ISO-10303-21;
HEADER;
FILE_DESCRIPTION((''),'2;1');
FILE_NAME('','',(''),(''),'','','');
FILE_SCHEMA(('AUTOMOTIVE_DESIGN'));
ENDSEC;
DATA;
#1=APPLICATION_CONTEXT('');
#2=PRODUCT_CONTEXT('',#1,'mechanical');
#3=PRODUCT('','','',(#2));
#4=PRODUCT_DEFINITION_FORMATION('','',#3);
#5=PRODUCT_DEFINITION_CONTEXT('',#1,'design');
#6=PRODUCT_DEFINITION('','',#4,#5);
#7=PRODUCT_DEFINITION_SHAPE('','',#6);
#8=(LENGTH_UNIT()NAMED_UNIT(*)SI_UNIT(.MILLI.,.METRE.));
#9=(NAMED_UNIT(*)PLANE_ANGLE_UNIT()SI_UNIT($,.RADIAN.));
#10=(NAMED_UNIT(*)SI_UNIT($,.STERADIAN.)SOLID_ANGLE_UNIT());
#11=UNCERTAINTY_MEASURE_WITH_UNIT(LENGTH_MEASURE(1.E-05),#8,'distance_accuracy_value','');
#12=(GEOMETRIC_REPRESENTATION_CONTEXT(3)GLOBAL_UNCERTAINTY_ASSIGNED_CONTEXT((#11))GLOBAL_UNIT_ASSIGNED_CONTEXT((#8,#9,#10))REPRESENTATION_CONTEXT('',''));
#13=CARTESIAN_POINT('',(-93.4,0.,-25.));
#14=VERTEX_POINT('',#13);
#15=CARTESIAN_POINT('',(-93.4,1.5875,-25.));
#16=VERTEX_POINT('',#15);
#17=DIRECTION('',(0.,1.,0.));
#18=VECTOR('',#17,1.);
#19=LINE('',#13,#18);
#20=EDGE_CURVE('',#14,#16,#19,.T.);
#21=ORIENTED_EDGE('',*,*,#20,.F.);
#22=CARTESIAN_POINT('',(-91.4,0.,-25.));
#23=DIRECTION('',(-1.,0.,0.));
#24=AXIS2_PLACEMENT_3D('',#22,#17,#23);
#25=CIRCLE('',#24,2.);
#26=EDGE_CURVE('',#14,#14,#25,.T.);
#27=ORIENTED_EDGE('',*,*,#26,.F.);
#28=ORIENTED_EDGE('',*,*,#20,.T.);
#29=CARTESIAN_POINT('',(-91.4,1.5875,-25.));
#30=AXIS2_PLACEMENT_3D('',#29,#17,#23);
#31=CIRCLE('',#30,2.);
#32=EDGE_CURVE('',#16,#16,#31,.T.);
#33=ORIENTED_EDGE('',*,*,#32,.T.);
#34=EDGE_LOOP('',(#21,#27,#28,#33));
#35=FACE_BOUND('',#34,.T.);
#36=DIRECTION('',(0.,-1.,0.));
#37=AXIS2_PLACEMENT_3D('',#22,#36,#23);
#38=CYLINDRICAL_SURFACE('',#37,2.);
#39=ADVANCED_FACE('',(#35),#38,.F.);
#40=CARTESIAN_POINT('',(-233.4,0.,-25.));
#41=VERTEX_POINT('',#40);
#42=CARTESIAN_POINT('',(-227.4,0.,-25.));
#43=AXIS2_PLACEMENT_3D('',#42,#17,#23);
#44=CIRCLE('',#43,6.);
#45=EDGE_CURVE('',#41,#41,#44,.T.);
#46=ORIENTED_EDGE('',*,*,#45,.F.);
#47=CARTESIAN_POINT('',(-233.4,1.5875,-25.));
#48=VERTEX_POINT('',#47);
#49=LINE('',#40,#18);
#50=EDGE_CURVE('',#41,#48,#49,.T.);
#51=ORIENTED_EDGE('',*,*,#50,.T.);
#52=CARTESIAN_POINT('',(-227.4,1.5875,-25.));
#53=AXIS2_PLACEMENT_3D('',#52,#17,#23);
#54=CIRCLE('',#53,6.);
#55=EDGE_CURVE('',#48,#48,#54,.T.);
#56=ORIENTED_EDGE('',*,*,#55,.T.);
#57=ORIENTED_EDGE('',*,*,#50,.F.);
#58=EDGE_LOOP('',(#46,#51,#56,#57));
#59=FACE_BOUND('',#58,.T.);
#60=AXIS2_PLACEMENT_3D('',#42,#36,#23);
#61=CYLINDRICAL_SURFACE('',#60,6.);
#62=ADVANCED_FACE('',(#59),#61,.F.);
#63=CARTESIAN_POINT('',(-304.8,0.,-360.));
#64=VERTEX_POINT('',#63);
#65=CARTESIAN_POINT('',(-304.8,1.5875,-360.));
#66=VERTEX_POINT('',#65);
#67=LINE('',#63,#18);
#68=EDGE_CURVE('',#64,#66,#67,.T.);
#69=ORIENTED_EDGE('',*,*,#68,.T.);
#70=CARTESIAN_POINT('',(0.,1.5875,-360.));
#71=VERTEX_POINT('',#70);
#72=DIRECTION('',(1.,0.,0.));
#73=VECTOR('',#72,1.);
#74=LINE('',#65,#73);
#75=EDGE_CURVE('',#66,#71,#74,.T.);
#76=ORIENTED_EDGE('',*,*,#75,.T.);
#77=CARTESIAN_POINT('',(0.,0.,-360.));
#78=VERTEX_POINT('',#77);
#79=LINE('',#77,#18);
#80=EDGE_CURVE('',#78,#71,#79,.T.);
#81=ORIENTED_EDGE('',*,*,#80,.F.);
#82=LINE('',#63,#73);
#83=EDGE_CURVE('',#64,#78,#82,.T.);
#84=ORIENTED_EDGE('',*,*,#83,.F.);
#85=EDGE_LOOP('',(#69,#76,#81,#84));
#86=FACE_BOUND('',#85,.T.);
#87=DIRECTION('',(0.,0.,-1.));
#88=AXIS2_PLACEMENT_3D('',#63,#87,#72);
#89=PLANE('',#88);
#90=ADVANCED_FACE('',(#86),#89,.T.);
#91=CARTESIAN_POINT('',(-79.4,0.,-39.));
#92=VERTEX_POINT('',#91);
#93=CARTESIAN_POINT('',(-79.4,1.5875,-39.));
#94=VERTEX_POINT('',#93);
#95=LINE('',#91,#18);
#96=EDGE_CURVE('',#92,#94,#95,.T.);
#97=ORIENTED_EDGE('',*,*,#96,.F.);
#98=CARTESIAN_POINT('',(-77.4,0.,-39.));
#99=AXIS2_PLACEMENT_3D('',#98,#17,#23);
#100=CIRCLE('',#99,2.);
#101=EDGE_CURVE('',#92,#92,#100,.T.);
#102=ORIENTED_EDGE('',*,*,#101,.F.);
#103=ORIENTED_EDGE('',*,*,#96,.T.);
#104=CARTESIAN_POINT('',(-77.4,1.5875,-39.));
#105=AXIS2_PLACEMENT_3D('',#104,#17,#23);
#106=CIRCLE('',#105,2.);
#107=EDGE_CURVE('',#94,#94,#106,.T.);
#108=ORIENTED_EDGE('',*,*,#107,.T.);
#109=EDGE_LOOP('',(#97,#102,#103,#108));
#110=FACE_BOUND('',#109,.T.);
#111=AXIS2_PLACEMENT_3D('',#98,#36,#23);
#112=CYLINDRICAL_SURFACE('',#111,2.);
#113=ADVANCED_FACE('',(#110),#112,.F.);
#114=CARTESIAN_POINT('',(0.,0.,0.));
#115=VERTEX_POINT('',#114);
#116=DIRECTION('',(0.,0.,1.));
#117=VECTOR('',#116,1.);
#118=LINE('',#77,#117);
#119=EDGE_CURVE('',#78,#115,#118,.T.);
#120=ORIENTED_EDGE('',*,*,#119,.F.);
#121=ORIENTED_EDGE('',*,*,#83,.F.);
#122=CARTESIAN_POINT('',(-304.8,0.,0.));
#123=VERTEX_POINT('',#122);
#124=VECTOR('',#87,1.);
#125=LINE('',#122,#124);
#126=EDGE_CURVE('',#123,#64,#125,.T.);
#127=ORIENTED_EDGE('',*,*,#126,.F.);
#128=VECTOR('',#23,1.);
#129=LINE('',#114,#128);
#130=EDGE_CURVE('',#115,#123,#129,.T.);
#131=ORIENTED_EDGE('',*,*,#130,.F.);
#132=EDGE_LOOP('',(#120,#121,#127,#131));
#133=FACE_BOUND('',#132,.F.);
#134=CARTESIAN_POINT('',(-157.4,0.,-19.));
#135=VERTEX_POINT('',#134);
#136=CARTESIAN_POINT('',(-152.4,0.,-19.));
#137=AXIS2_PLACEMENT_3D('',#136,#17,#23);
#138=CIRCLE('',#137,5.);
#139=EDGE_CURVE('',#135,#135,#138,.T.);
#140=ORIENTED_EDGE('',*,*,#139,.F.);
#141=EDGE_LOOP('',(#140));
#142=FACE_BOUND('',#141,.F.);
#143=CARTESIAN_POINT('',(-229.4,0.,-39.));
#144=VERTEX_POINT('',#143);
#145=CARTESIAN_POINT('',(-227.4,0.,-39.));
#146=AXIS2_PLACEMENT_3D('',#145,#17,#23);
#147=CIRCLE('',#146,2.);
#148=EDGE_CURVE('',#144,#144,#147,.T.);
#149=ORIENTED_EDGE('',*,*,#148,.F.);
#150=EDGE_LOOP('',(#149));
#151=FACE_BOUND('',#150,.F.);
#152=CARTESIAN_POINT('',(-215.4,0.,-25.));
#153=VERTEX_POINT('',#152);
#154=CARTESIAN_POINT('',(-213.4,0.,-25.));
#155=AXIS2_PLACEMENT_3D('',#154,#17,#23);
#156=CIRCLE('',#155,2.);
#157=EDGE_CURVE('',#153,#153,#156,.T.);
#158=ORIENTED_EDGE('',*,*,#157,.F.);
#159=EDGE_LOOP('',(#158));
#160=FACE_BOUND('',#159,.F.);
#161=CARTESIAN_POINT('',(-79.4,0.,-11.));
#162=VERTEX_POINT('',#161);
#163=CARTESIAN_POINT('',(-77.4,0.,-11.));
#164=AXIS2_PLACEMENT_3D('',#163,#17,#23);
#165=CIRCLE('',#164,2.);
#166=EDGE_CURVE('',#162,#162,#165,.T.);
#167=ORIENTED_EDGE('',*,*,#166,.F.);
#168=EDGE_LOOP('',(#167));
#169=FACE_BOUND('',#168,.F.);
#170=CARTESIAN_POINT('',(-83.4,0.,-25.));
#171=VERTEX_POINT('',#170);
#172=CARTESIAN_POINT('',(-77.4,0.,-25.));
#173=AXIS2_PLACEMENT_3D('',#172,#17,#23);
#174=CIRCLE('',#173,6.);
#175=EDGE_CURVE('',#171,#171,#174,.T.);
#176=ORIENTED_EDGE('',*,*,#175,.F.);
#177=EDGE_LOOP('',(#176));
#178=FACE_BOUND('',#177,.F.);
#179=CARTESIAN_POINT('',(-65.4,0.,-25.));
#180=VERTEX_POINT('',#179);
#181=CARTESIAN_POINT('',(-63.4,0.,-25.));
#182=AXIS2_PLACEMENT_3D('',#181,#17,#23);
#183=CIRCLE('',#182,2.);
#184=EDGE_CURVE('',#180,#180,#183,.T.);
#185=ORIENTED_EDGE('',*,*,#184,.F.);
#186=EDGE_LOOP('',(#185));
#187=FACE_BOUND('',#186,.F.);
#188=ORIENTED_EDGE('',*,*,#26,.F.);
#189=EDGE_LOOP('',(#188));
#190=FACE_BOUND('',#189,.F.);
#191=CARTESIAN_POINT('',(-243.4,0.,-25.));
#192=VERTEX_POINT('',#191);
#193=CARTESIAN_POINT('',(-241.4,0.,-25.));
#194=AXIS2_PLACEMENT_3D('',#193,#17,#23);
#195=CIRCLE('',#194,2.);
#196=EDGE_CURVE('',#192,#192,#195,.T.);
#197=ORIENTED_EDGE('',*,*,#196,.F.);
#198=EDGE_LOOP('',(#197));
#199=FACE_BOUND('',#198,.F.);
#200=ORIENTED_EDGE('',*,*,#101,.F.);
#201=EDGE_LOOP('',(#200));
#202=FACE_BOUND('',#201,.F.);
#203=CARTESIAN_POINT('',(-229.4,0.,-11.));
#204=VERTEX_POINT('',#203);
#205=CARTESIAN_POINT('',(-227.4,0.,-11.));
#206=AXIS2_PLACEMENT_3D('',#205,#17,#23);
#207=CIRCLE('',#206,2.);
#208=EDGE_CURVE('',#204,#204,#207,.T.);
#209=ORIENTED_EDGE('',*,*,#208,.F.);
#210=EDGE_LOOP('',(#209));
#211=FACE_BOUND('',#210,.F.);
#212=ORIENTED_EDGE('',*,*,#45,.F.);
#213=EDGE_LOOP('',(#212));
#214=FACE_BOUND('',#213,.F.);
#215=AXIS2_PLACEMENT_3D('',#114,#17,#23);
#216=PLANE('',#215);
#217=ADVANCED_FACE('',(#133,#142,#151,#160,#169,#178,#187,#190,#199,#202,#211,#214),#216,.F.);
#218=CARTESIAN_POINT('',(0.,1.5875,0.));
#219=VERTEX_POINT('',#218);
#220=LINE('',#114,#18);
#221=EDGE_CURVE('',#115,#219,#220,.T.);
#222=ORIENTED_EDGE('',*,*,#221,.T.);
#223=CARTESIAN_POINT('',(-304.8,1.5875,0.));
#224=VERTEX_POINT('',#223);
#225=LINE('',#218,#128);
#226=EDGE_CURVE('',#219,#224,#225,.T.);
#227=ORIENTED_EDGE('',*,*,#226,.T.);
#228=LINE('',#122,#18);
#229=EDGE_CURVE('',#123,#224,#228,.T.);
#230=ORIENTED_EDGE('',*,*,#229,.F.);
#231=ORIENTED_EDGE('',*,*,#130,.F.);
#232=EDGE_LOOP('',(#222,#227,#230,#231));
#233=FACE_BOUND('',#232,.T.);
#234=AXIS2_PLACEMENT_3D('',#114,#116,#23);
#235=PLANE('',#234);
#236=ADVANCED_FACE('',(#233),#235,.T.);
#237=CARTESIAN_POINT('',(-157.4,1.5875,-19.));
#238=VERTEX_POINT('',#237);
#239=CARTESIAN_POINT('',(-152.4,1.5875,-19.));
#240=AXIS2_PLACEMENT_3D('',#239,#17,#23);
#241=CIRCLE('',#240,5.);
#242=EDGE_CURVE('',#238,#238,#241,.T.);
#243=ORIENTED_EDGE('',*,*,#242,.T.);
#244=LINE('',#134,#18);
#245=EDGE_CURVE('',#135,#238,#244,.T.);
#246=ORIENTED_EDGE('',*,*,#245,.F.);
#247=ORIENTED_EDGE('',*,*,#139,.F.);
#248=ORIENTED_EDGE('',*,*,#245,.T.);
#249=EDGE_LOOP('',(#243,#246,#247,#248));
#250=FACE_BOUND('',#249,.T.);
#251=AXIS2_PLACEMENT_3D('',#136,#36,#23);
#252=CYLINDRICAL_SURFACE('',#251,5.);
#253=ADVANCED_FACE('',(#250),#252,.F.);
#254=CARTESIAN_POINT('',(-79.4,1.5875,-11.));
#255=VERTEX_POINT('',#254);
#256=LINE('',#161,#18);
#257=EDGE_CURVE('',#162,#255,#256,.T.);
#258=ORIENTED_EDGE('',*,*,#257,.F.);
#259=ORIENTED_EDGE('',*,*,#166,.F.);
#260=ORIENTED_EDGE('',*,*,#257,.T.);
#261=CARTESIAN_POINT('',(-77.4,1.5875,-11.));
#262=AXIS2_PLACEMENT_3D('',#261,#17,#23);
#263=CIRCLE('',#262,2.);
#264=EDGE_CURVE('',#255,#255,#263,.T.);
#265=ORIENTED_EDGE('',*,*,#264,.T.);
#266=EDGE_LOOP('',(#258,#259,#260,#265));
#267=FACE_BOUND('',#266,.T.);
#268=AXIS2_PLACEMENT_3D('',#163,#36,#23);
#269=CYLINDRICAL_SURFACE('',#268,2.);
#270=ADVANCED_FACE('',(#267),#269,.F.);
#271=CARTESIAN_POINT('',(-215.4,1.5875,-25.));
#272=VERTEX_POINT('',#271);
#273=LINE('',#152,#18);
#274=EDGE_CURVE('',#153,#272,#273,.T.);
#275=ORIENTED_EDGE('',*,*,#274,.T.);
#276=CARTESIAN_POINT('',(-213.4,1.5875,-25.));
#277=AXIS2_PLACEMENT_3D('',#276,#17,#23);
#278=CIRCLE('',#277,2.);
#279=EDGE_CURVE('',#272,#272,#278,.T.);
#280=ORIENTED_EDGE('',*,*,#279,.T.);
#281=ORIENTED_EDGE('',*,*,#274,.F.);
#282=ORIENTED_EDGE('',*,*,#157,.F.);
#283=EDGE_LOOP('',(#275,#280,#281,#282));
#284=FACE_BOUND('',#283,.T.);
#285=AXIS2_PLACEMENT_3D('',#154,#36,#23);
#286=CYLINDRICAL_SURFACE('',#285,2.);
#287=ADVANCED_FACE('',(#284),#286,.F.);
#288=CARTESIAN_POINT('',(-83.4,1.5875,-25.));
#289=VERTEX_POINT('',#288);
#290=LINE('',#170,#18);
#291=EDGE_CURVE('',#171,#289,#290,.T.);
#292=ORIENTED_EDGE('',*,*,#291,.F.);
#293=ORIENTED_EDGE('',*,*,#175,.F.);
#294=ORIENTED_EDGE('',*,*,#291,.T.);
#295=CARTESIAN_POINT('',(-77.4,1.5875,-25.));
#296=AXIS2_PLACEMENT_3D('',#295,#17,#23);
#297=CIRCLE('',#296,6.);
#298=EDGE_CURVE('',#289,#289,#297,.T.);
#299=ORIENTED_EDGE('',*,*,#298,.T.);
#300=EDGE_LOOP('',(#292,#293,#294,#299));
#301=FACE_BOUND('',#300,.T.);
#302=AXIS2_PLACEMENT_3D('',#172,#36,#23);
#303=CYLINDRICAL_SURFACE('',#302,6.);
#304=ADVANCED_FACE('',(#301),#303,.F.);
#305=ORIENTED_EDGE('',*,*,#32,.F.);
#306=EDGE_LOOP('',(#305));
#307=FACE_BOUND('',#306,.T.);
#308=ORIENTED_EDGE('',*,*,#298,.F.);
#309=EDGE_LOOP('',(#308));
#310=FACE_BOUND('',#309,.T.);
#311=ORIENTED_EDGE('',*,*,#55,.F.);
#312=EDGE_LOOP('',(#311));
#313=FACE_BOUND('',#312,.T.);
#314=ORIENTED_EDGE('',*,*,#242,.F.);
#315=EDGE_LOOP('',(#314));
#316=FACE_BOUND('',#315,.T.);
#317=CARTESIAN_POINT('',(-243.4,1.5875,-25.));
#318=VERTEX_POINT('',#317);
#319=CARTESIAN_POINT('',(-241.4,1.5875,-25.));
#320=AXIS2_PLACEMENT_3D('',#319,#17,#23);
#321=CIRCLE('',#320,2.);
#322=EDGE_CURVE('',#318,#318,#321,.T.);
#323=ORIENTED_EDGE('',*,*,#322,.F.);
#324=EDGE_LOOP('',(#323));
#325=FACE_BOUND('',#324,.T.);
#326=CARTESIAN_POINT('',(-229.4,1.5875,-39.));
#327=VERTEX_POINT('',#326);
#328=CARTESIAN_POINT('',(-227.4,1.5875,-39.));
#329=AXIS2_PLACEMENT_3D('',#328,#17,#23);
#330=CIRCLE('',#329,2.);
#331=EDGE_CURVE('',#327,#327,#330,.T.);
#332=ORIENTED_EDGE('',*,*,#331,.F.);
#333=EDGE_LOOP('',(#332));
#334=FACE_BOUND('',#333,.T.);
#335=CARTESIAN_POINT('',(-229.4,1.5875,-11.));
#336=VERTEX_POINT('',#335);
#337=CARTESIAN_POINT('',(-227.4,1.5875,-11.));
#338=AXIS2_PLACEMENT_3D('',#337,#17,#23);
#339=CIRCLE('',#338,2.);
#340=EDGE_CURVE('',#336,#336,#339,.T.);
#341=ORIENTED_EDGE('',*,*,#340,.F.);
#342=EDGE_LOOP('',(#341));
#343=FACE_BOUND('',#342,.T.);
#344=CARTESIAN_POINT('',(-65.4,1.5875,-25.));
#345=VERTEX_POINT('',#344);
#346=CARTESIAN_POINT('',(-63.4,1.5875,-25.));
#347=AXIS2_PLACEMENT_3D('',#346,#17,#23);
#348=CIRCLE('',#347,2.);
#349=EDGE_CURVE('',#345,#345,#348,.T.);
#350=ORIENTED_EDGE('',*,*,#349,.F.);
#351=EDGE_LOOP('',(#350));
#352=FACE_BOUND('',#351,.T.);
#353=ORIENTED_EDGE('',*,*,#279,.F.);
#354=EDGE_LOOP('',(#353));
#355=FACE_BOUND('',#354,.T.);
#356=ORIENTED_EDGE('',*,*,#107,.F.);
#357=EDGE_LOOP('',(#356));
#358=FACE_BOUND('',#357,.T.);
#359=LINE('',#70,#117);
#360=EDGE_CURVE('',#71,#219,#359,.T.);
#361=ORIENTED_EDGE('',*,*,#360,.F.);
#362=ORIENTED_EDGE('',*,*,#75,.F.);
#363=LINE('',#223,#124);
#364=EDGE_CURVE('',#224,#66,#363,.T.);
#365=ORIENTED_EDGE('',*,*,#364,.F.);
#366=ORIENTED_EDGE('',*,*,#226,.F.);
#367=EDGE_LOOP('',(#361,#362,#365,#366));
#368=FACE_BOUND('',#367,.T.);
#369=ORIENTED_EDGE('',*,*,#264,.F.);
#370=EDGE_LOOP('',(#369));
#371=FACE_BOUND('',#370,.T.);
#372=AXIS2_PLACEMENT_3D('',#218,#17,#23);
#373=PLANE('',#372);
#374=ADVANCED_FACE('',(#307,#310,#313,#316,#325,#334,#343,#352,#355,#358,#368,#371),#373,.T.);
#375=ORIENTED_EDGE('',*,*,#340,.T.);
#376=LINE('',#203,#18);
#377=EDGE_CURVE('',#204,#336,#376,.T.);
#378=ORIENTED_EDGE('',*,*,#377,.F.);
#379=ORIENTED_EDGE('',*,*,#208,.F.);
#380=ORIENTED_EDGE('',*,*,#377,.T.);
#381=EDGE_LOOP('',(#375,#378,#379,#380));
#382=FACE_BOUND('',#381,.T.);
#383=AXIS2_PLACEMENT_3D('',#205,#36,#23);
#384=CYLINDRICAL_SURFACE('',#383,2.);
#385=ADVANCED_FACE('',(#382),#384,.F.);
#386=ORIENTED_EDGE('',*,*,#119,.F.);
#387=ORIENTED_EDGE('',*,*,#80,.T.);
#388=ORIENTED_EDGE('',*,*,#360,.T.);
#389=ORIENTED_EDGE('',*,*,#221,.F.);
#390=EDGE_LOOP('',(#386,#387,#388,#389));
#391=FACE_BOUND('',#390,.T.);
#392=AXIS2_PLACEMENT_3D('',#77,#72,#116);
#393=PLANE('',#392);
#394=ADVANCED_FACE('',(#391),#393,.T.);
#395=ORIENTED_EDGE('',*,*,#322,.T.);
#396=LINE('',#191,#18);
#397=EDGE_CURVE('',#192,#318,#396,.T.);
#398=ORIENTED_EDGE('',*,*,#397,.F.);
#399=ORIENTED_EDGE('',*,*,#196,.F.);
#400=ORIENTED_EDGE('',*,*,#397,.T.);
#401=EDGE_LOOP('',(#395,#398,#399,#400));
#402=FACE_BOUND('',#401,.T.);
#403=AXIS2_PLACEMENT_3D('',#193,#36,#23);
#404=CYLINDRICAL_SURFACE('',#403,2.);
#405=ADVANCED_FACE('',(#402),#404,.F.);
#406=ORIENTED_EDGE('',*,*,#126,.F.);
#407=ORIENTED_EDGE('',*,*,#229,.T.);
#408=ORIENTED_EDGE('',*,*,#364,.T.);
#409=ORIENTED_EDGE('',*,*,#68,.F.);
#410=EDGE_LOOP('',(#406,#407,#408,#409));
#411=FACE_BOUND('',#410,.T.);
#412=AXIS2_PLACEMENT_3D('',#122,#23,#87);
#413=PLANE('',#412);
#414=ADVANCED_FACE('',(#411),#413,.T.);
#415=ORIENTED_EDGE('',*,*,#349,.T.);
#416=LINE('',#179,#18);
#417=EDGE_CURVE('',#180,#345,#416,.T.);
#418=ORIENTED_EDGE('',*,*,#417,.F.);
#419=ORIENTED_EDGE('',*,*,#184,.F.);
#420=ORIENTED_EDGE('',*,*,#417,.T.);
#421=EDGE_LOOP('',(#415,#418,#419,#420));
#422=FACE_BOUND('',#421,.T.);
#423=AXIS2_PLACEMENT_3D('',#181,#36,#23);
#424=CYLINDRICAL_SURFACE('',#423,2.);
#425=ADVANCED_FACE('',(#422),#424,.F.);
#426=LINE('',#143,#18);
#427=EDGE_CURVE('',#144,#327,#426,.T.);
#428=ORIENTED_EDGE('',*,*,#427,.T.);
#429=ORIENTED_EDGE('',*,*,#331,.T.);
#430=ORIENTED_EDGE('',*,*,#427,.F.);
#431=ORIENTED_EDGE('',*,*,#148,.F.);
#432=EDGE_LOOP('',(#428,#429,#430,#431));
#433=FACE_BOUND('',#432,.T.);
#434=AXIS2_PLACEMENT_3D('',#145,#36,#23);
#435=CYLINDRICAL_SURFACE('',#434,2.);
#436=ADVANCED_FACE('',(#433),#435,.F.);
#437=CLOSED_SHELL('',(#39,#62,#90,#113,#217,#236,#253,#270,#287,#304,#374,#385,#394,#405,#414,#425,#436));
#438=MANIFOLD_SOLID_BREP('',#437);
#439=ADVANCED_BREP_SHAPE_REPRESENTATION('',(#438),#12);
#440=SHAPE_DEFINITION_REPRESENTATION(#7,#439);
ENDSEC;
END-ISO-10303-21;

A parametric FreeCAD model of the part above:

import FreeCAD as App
import Part
import Sketcher

V = App.Vector
Q = App.Units.Quantity


def add_polygon(sketch, points):
    """Adds a closed chain of lines whose ends are joined by coincident constraints."""
    first, n = sketch.GeometryCount, len(points)
    for a, b in zip(points, points[1:] + points[:1]):
        sketch.addGeometry(Part.LineSegment(App.Vector(*a, 0), App.Vector(*b, 0)), False)
    for i in range(n):
        sketch.addConstraint(Sketcher.Constraint("Coincident", first + i, 2, first + (i + 1) % n, 1))

doc = App.newDocument("Part")
body = doc.addObject("PartDesign::Body", "Body")

sketch1 = body.newObject("Sketcher::SketchObject", "Sketch")
sketch1.AttachmentSupport = (doc.getObject("XZ_Plane"), [""])
sketch1.MapMode = "FlatFace"
add_polygon(sketch1, [(-304.8, 0), (0, 0), (0, -360), (-304.8, -360)])
sketch1.addGeometry(Part.Circle(V(-63.4, -25, 0), V(0, 0, 1), 2), False)
sketch1.addGeometry(Part.Circle(V(-77.4, -39, 0), V(0, 0, 1), 2), False)
sketch1.addGeometry(Part.Circle(V(-77.4, -25, 0), V(0, 0, 1), 6), False)
sketch1.addGeometry(Part.Circle(V(-91.4, -25, 0), V(0, 0, 1), 2), False)
sketch1.addGeometry(Part.Circle(V(-77.4, -11, 0), V(0, 0, 1), 2), False)
sketch1.addGeometry(Part.Circle(V(-152.4, -19, 0), V(0, 0, 1), 5), False)
sketch1.addGeometry(Part.Circle(V(-227.4, -39, 0), V(0, 0, 1), 2), False)
sketch1.addGeometry(Part.Circle(V(-213.4, -25, 0), V(0, 0, 1), 2), False)
sketch1.addGeometry(Part.Circle(V(-227.4, -25, 0), V(0, 0, 1), 6), False)
sketch1.addGeometry(Part.Circle(V(-227.4, -11, 0), V(0, 0, 1), 2), False)
sketch1.addGeometry(Part.Circle(V(-241.4, -25, 0), V(0, 0, 1), 2), False)
sketch1.addConstraint([
    Sketcher.Constraint("Horizontal", 0),
    Sketcher.Constraint("Vertical", 1),
    Sketcher.Constraint("Horizontal", 2),
    Sketcher.Constraint("Vertical", 3),
    Sketcher.Constraint("Coincident", 0, 2, -1, 1),
    Sketcher.Constraint("Equal", 4, 5),
    Sketcher.Constraint("Equal", 5, 7),
    Sketcher.Constraint("Equal", 7, 8),
    Sketcher.Constraint("Equal", 8, 10),
    Sketcher.Constraint("Equal", 10, 11),
    Sketcher.Constraint("Equal", 6, 12),
    Sketcher.Constraint("Equal", 11, 13),
    Sketcher.Constraint("Equal", 13, 14),
    Sketcher.Constraint("Horizontal", 4, 3, 6, 3),
    Sketcher.Constraint("Horizontal", 6, 3, 7, 3),
    Sketcher.Constraint("Horizontal", 5, 3, 10, 3),
    Sketcher.Constraint("Horizontal", 7, 3, 11, 3),
    Sketcher.Constraint("Horizontal", 11, 3, 12, 3),
    Sketcher.Constraint("Horizontal", 8, 3, 13, 3),
    Sketcher.Constraint("Horizontal", 12, 3, 14, 3),
    Sketcher.Constraint("Vertical", 5, 3, 6, 3),
    Sketcher.Constraint("Vertical", 6, 3, 8, 3),
    Sketcher.Constraint("Vertical", 10, 3, 12, 3),
    Sketcher.Constraint("Vertical", 12, 3, 13, 3),
    Sketcher.Constraint("Diameter", 4, Q("4 mm")),
    Sketcher.Constraint("Diameter", 6, Q("12 mm")),
    Sketcher.Constraint("Diameter", 9, Q("10 mm")),
    Sketcher.Constraint("DistanceY", 1, 2, 1, 1, Q("360 mm")),
    Sketcher.Constraint("DistanceX", 0, 1, 0, 2, Q("304.8 mm")),
    Sketcher.Constraint("DistanceY", 4, 3, -1, 1, Q("25 mm")),
    Sketcher.Constraint("DistanceY", 8, 3, -1, 1, Q("11 mm")),
    Sketcher.Constraint("DistanceY", 9, 3, -1, 1, Q("19 mm")),
    Sketcher.Constraint("DistanceX", 7, 3, 4, 3, Q("28 mm")),
    Sketcher.Constraint("DistanceY", 5, 3, 8, 3, Q("28 mm")),
    Sketcher.Constraint("DistanceX", 9, 3, 6, 3, Q("75 mm")),
    Sketcher.Constraint("DistanceX", 10, 3, 9, 3, Q("75 mm")),
    Sketcher.Constraint("DistanceX", 14, 3, 11, 3, Q("28 mm")),
    Sketcher.Constraint("DistanceX", 5, 3, -1, 1, Q("77.4 mm")),
    Sketcher.Constraint("DistanceX", 5, 3, 4, 3, Q("14 mm")),
    Sketcher.Constraint("DistanceX", 10, 3, 11, 3, Q("14 mm")),
])
pad1 = body.newObject("PartDesign::Pad", "Pad")
pad1.Profile = sketch1
pad1.Length = 1.5875
pad1.Reversed = True

doc.recompute()
